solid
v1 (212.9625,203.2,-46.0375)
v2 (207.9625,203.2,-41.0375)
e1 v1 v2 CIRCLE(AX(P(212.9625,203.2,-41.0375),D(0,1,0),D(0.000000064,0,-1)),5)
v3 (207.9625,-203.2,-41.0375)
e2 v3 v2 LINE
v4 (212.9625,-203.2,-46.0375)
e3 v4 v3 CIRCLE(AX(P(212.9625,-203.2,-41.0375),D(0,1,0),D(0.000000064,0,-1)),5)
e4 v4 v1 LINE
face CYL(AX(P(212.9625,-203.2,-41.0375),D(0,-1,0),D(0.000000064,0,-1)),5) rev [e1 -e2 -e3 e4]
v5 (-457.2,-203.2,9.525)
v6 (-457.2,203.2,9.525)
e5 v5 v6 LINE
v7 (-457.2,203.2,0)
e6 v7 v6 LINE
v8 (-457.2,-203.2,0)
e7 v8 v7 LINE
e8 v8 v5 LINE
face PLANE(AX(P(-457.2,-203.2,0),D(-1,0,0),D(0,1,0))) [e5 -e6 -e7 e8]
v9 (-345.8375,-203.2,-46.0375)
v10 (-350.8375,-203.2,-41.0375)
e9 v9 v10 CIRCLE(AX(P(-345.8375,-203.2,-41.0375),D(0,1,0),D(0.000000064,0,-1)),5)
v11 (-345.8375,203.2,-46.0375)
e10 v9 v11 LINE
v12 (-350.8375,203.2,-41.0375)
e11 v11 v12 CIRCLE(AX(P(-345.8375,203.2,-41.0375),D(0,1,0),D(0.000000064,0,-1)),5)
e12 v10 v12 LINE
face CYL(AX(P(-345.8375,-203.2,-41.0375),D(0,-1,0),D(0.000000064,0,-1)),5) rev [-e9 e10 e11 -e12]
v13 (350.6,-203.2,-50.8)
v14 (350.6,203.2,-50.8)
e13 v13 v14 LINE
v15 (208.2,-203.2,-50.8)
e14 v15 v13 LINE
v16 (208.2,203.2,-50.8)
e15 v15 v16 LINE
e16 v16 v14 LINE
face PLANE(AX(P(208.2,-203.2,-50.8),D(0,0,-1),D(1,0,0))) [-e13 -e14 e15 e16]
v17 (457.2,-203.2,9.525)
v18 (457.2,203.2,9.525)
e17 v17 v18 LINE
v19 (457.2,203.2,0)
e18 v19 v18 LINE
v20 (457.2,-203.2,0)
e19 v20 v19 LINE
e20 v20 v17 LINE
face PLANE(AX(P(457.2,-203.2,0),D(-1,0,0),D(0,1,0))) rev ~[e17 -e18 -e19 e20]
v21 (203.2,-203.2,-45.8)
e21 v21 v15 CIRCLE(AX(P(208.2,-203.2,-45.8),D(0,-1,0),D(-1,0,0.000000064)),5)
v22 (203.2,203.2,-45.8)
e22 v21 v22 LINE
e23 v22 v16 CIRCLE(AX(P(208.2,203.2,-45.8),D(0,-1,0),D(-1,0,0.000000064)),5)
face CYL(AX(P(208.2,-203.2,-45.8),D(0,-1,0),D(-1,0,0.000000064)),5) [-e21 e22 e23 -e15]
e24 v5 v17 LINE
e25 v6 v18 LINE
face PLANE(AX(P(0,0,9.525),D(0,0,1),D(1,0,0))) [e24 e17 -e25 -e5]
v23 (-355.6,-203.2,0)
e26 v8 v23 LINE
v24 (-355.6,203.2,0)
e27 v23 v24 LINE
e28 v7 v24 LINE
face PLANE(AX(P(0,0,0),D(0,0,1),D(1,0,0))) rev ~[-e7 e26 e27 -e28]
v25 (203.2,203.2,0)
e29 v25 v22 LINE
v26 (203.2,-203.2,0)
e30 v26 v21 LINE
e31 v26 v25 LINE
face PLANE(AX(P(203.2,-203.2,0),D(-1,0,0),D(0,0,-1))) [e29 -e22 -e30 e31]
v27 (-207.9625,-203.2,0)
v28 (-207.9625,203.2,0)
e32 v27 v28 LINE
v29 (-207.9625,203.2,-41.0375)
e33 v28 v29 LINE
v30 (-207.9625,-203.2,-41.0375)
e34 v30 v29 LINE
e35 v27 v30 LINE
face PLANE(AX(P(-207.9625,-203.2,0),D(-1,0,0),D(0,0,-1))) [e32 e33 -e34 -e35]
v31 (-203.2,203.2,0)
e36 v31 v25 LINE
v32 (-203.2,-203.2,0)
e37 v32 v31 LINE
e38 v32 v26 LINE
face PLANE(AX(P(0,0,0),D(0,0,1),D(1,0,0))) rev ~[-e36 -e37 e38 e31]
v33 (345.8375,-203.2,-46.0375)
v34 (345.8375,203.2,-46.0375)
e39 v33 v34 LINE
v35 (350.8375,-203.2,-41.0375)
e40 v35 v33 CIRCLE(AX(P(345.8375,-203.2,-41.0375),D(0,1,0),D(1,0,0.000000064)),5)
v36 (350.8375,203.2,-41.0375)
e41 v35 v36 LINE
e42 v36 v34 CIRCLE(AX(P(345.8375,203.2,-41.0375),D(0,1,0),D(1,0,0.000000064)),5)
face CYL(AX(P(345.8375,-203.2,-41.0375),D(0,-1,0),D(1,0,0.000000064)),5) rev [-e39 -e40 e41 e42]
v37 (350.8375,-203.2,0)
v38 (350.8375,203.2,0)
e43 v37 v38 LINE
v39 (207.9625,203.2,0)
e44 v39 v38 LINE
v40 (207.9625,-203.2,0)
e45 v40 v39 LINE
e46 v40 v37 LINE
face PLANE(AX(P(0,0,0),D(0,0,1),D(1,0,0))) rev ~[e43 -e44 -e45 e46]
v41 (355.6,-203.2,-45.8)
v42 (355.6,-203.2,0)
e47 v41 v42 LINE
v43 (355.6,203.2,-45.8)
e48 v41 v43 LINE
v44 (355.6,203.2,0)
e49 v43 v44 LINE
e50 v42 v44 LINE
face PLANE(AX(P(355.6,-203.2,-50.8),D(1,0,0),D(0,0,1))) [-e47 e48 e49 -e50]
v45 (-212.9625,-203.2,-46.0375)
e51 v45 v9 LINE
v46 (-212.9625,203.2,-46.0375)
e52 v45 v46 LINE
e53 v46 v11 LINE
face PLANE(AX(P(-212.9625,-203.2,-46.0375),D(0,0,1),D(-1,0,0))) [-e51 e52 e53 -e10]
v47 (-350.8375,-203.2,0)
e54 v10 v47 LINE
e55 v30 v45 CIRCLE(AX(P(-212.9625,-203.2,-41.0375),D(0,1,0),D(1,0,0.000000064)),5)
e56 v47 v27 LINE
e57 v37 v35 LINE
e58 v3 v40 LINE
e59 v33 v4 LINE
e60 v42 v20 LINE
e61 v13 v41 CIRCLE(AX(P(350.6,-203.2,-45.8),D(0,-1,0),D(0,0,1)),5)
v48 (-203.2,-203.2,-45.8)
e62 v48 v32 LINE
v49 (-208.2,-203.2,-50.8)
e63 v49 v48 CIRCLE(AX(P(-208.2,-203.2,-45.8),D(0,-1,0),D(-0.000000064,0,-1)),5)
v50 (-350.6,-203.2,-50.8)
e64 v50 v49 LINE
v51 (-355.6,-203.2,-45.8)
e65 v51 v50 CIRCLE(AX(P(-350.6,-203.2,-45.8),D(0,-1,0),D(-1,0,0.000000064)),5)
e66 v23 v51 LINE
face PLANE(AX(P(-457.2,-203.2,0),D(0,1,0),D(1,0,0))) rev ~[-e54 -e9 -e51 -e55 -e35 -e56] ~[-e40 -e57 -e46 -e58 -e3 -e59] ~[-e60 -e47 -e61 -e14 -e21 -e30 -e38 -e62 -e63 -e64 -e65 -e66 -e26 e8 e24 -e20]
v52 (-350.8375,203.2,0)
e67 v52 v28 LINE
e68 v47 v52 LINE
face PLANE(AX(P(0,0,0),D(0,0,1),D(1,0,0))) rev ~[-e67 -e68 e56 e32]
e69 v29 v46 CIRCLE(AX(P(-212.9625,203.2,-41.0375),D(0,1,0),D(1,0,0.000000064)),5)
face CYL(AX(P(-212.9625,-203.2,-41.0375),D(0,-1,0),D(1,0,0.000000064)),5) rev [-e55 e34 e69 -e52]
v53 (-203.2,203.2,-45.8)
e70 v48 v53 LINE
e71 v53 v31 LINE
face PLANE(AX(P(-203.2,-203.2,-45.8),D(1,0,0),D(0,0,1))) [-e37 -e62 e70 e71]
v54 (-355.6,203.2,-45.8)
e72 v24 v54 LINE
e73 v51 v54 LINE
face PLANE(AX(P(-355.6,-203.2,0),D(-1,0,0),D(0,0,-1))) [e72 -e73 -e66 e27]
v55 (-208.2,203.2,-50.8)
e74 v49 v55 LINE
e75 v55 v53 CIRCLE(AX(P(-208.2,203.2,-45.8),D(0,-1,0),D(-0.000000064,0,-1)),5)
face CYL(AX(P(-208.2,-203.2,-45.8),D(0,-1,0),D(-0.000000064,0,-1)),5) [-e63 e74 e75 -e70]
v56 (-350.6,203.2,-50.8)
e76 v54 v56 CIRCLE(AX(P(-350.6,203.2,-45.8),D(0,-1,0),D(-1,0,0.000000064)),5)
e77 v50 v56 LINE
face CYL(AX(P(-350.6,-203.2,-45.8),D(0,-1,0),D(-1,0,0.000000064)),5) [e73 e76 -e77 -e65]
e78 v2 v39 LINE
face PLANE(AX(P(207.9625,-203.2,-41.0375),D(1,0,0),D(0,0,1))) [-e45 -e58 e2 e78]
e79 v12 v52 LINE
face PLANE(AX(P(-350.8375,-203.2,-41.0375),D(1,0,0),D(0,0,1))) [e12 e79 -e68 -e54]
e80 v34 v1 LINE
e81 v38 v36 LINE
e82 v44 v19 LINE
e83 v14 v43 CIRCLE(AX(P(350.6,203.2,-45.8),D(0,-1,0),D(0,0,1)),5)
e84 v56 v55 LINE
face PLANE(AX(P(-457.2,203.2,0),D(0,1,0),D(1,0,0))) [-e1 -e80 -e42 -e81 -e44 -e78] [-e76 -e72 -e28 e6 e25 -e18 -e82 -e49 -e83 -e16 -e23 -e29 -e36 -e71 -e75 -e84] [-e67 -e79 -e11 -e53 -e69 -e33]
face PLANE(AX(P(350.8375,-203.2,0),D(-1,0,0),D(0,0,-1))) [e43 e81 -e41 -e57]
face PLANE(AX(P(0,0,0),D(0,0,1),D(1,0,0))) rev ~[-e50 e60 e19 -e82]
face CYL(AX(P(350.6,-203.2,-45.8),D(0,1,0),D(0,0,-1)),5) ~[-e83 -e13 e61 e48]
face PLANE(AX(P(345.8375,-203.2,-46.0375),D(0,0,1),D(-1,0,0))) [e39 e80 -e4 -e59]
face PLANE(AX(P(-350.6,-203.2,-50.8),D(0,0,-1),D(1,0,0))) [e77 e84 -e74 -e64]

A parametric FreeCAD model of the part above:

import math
import FreeCAD as App
import Part
import Sketcher

V = App.Vector
Q = App.Units.Quantity


def edges_at(feature, points):
    """Names of the edges that pass closest to the given points."""
    edges = feature.Shape.Edges
    near = lambda p: min(range(len(edges)), key=lambda i: edges[i].distToShape(Part.Vertex(*p))[0])
    return sorted({f"Edge{near(p) + 1}" for p in points})

doc = App.newDocument("Part")
body = doc.addObject("PartDesign::Body", "Body")

sketch1 = doc.addObject("Sketcher::SketchObject", "Sketch")
body.addObject(sketch1)
sketch1.AttachmentSupport = (doc.XY_Plane, [""])
sketch1.MapMode = "FlatFace"
sketch1.addGeometry([
    Part.LineSegment(V(-457, 203, 0), V(-457, -203, 0)),
    Part.LineSegment(V(-457, -203, 0), V(457, -203, 0)),
    Part.LineSegment(V(457, -203, 0), V(457, 203, 0)),
    Part.LineSegment(V(457, 203, 0), V(-457, 203, 0)),
], False)
sketch1.addConstraint([
    Sketcher.Constraint("Coincident", 0, 2, 1, 1),
    Sketcher.Constraint("Coincident", 1, 2, 2, 1),
    Sketcher.Constraint("Coincident", 2, 2, 3, 1),
    Sketcher.Constraint("Coincident", 3, 2, 0, 1),
    Sketcher.Constraint("Vertical", 0),
    Sketcher.Constraint("Horizontal", 1),
    Sketcher.Constraint("Vertical", 2),
    Sketcher.Constraint("Horizontal", 3),
    Sketcher.Constraint("Symmetric", 0, 2, 2, 2, -1, 1),
    Sketcher.Constraint("DistanceX", 1, 1, 1, 2, Q("914.4 mm")),
    Sketcher.Constraint("DistanceY", 0, 2, 0, 1, Q("406.4 mm")),
])
pad1 = doc.addObject("PartDesign::Pad", "Pad")
body.addObject(pad1)
pad1.Profile = sketch1
pad1.Length = 9.525

sketch2 = doc.addObject("Sketcher::SketchObject", "Sketch001")
body.addObject(sketch2)
sketch2.AttachmentSupport = (doc.XZ_Plane, [""])
sketch2.MapMode = "FlatFace"
sketch2.AttachmentOffset = App.Placement(V(0, 0, 203.2), App.Rotation())
sketch2.addGeometry([
    Part.LineSegment(V(-350.8, 0, 0), V(-355.6, 0, 0)),
    Part.LineSegment(V(-355.6, 0, 0), V(-355.6, -45.8, 0)),
    Part.ArcOfCircle(Part.Circle(V(-350.6, -45.8, 0), V(0, 0, 1), 5), math.radians(180), math.radians(270)),
    Part.LineSegment(V(-350.6, -50.8, 0), V(-208.2, -50.8, 0)),
    Part.ArcOfCircle(Part.Circle(V(-208.2, -45.8, 0), V(0, 0, 1), 5), math.radians(-90), math.radians(0)),
    Part.LineSegment(V(-203.2, -45.8, 0), V(-203.2, 0, 0)),
    Part.LineSegment(V(-203.2, 0, 0), V(-208, 0, 0)),
    Part.LineSegment(V(-208, 0, 0), V(-208, -41, 0)),
    Part.ArcOfCircle(Part.Circle(V(-213, -41, 0), V(0, 0, 1), 5), math.radians(-90), math.radians(0)),
    Part.LineSegment(V(-213, -46, 0), V(-345.8, -46, 0)),
    Part.ArcOfCircle(Part.Circle(V(-345.8, -41, 0), V(0, 0, 1), 5), math.radians(180), math.radians(270)),
    Part.LineSegment(V(-350.8, -41, 0), V(-350.8, 0, 0)),
    Part.LineSegment(V(208, 0, 0), V(203.2, 0, 0)),
    Part.LineSegment(V(203.2, 0, 0), V(203.2, -45.8, 0)),
    Part.ArcOfCircle(Part.Circle(V(208.2, -45.8, 0), V(0, 0, 1), 5), math.radians(180), math.radians(270)),
    Part.LineSegment(V(208.2, -50.8, 0), V(355.6, -50.8, 0)),
    Part.LineSegment(V(355.6, -50.8, 0), V(355.6, 0, 0)),
    Part.LineSegment(V(355.6, 0, 0), V(350.8, 0, 0)),
    Part.LineSegment(V(350.8, 0, 0), V(350.8, -41, 0)),
    Part.ArcOfCircle(Part.Circle(V(345.8, -41, 0), V(0, 0, 1), 5), math.radians(-90), math.radians(0)),
    Part.LineSegment(V(345.8, -46, 0), V(213, -46, 0)),
    Part.ArcOfCircle(Part.Circle(V(213, -41, 0), V(0, 0, 1), 5), math.radians(180), math.radians(270)),
    Part.LineSegment(V(208, -41, 0), V(208, 0, 0)),
], False)
sketch2.addConstraint([
    Sketcher.Constraint("Coincident", 0, 2, 1, 1),
    Sketcher.Constraint("Tangent", 1, 2, 2, 1),
    Sketcher.Constraint("Tangent", 2, 2, 3, 1),
    Sketcher.Constraint("Tangent", 3, 2, 4, 1),
    Sketcher.Constraint("Tangent", 4, 2, 5, 1),
    Sketcher.Constraint("Coincident", 5, 2, 6, 1),
    Sketcher.Constraint("Coincident", 6, 2, 7, 1),
    Sketcher.Constraint("Tangent", 7, 2, 8, 2),
    Sketcher.Constraint("Tangent", 8, 1, 9, 1),
    Sketcher.Constraint("Tangent", 9, 2, 10, 2),
    Sketcher.Constraint("Tangent", 10, 1, 11, 1),
    Sketcher.Constraint("Coincident", 11, 2, 0, 1),
    Sketcher.Constraint("Coincident", 12, 2, 13, 1),
    Sketcher.Constraint("Tangent", 13, 2, 14, 1),
    Sketcher.Constraint("Tangent", 14, 2, 15, 1),
    Sketcher.Constraint("Coincident", 15, 2, 16, 1),
    Sketcher.Constraint("Coincident", 16, 2, 17, 1),
    Sketcher.Constraint("Coincident", 17, 2, 18, 1),
    Sketcher.Constraint("Tangent", 18, 2, 19, 2),
    Sketcher.Constraint("Tangent", 19, 1, 20, 1),
    Sketcher.Constraint("Tangent", 20, 2, 21, 2),
    Sketcher.Constraint("Tangent", 21, 1, 22, 1),
    Sketcher.Constraint("Coincident", 22, 2, 12, 1),
    Sketcher.Constraint("Horizontal", 0),
    Sketcher.Constraint("Vertical", 1),
    Sketcher.Constraint("Horizontal", 3),
    Sketcher.Constraint("Vertical", 5),
    Sketcher.Constraint("Horizontal", 6),
    Sketcher.Constraint("Vertical", 7),
    Sketcher.Constraint("Horizontal", 9),
    Sketcher.Constraint("Vertical", 11),
    Sketcher.Constraint("Horizontal", 12),
    Sketcher.Constraint("Vertical", 13),
    Sketcher.Constraint("Horizontal", 15),
    Sketcher.Constraint("Vertical", 16),
    Sketcher.Constraint("Horizontal", 17),
    Sketcher.Constraint("Vertical", 18),
    Sketcher.Constraint("Horizontal", 20),
    Sketcher.Constraint("Vertical", 22),
    Sketcher.Constraint("Equal", 2, 4),
    Sketcher.Constraint("Equal", 4, 8),
    Sketcher.Constraint("Equal", 8, 10),
    Sketcher.Constraint("Equal", 10, 14),
    Sketcher.Constraint("Equal", 14, 19),
    Sketcher.Constraint("Equal", 19, 21),
    Sketcher.Constraint("Symmetric", 5, 2, 12, 2, -1, 1),
    Sketcher.Constraint("Symmetric", 0, 2, 16, 2, -1, 1),
    Sketcher.Constraint("Symmetric", 10, 3, 19, 3, -2),
    Sketcher.Constraint("Symmetric", 6, 2, 22, 2, -2),
    Sketcher.Constraint("PointOnObject", 0, 2, -1),
    Sketcher.Constraint("Horizontal", 4, 3, 14, 3),
    Sketcher.Constraint("Equal", 0, 6),
    Sketcher.Constraint("Radius", 2, Q("5 mm")),
    Sketcher.Constraint("DistanceX", 3, 1, 3, 2, Q("142.4 mm")),
    Sketcher.Constraint("DistanceY", 1, 2, 1, 1, Q("45.8 mm")),
    Sketcher.Constraint("DistanceX", 2, 3, -1, 1, Q("350.6 mm")),
    Sketcher.Constraint("DistanceX", 9, 2, 9, 1, Q("132.875 mm")),
    Sketcher.Constraint("DistanceY", 7, 2, 7, 1, Q("41.0375 mm")),
])
pad2 = doc.addObject("PartDesign::Pad", "Pad001")
body.addObject(pad2)
pad2.Profile = sketch2
pad2.Length = 406.4
pad2.Reversed = True
doc.recompute()

fillet = doc.addObject("PartDesign::Fillet", "Fillet")
body.addObject(fillet)
fillet.Base = (pad2, edges_at(pad2, [(355.6, 0, -50.8)]))
fillet.Radius = 5

doc.recompute()
